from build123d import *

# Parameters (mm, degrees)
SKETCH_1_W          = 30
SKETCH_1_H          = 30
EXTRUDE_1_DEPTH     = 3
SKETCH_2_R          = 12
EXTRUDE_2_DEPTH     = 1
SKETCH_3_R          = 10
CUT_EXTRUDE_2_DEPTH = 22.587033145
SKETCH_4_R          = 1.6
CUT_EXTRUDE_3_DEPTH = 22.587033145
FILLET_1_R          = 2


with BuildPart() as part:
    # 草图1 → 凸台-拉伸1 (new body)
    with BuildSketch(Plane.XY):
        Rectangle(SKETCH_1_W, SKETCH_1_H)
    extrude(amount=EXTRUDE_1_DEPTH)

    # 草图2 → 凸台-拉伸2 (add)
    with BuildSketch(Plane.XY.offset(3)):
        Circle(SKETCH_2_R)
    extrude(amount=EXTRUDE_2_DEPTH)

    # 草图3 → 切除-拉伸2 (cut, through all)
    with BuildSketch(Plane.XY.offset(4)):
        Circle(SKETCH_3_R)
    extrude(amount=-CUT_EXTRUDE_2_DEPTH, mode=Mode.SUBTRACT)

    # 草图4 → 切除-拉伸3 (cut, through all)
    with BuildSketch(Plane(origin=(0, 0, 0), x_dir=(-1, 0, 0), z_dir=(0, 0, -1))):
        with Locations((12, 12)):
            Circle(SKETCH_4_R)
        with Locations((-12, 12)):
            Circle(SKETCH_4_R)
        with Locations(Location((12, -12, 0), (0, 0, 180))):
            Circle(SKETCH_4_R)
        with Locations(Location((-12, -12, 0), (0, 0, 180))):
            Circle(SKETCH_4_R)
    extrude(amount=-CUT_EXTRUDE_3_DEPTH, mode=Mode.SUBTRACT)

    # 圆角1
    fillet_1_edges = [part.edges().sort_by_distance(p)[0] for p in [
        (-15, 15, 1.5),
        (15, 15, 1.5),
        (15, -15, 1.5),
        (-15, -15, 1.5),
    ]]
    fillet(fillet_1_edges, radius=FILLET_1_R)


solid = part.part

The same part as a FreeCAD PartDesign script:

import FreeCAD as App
import Part
import Sketcher
from FreeCAD import Vector
Q = App.Units.Quantity


def edges_at(feature, points):
    """Names of the edges that pass closest to the given points."""
    edges = feature.Shape.Edges
    near = lambda p: min(range(len(edges)), key=lambda i: edges[i].distToShape(Part.Vertex(*p))[0])
    return sorted({f"Edge{near(p) + 1}" for p in points})

doc = App.newDocument("Part")
params = doc.addObject("Spreadsheet::Sheet", "Params")
for row, (alias, value) in enumerate([
    ("sketch1_width", "30 mm"),
    ("pad1_length", "3 mm"),
    ("sketch2_diameter", "24 mm"),
    ("pad2_length", "1 mm"),
    ("sketch3_diameter", "20 mm"),
    ("sketch4_diameter", "3.2 mm"),
    ("fillet_radius", "2 mm"),
], start=1):
    params.set(f"A{row}", alias)
    params.set(f"B{row}", "=" + value)
    params.setAlias(f"B{row}", alias)

body = doc.addObject("PartDesign::Body", "Body")

# Sketch on XY plane
sketch1 = body.newObject("Sketcher::SketchObject", "Sketch")
sketch1.AttachmentSupport = (doc.getObject("XY_Plane"), [""])
sketch1.MapMode = "FlatFace"
sketch1.addGeometry(Part.LineSegment(Vector(-15, 15, 0), Vector(-15, -15, 0)), False)
sketch1.addGeometry(Part.LineSegment(Vector(-15, -15, 0), Vector(15, -15, 0)), False)
sketch1.addGeometry(Part.LineSegment(Vector(15, -15, 0), Vector(15, 15, 0)), False)
sketch1.addGeometry(Part.LineSegment(Vector(15, 15, 0), Vector(-15, 15, 0)), False)
sketch1.addConstraint(Sketcher.Constraint("Coincident", 0, 2, 1, 1))
sketch1.addConstraint(Sketcher.Constraint("Coincident", 1, 2, 2, 1))
sketch1.addConstraint(Sketcher.Constraint("Coincident", 2, 2, 3, 1))
sketch1.addConstraint(Sketcher.Constraint("Coincident", 3, 2, 0, 1))
sketch1.addConstraint(Sketcher.Constraint("Vertical", 0))
sketch1.addConstraint(Sketcher.Constraint("Horizontal", 1))
sketch1.addConstraint(Sketcher.Constraint("Vertical", 2))
sketch1.addConstraint(Sketcher.Constraint("Horizontal", 3))
sketch1.addConstraint(Sketcher.Constraint("Symmetric", 0, 2, 2, 2, -1, 1))
sketch1.addConstraint(Sketcher.Constraint("Equal", 3, 0))
sketch1.addConstraint(Sketcher.Constraint("DistanceX", 1, 1, 1, 2, Q("30 mm")))
sketch1.setExpression("Constraints[10]", "Params.sketch1_width")
pad1 = body.newObject("PartDesign::Pad", "Pad")
pad1.Profile = sketch1
pad1.setExpression("Length", "Params.pad1_length")

# Sketch on XY plane
sketch2 = body.newObject("Sketcher::SketchObject", "Sketch001")
sketch2.AttachmentSupport = (doc.getObject("XY_Plane"), [""])
sketch2.MapMode = "FlatFace"
sketch2.AttachmentOffset = App.Placement(Vector(0, 0, 3), App.Rotation())
sketch2.addGeometry(Part.Circle(Vector(0, 0, 0), Vector(0, 0, 1), 12), False)
sketch2.addConstraint(Sketcher.Constraint("Coincident", 0, 3, -1, 1))
sketch2.addConstraint(Sketcher.Constraint("Diameter", 0, Q("24 mm")))
sketch2.setExpression("Constraints[1]", "Params.sketch2_diameter")
pad2 = body.newObject("PartDesign::Pad", "Pad001")
pad2.Profile = sketch2
pad2.setExpression("Length", "Params.pad2_length")

# Sketch on XY plane
sketch3 = body.newObject("Sketcher::SketchObject", "Sketch002")
sketch3.AttachmentSupport = (doc.getObject("XY_Plane"), [""])
sketch3.MapMode = "FlatFace"
sketch3.AttachmentOffset = App.Placement(Vector(0, 0, 4), App.Rotation())
sketch3.addGeometry(Part.Circle(Vector(0, 0, 0), Vector(0, 0, 1), 10), False)
sketch3.addConstraint(Sketcher.Constraint("Coincident", 0, 3, -1, 1))
sketch3.addConstraint(Sketcher.Constraint("Diameter", 0, Q("20 mm")))
sketch3.setExpression("Constraints[1]", "Params.sketch3_diameter")
pocket1 = body.newObject("PartDesign::Pocket", "Pocket")
pocket1.Profile = sketch3
pocket1.Type = "ThroughAll"

# Sketch on XY plane
sketch4 = body.newObject("Sketcher::SketchObject", "Sketch003")
sketch4.AttachmentSupport = (doc.getObject("XY_Plane"), [""])
sketch4.MapMode = "FlatFace"
sketch4.addGeometry(Part.Circle(Vector(-12, 12, 0), Vector(0, 0, 1), 1.6), False)
sketch4.addGeometry(Part.Circle(Vector(12, 12, 0), Vector(0, 0, 1), 1.6), False)
sketch4.addGeometry(Part.Circle(Vector(-12, -12, 0), Vector(0, 0, 1), 1.6), False)
sketch4.addGeometry(Part.Circle(Vector(12, -12, 0), Vector(0, 0, 1), 1.6), False)
sketch4.addConstraint(Sketcher.Constraint("Equal", 0, 1))
sketch4.addConstraint(Sketcher.Constraint("Equal", 1, 2))
sketch4.addConstraint(Sketcher.Constraint("Equal", 2, 3))
sketch4.addConstraint(Sketcher.Constraint("Symmetric", 1, 3, 2, 3, -1, 1))
sketch4.addConstraint(Sketcher.Constraint("Symmetric", 0, 3, 3, 3, -1, 1))
sketch4.addConstraint(Sketcher.Constraint("Symmetric", 0, 3, 1, 3, -2))
sketch4.addConstraint(Sketcher.Constraint("Diameter", 0, Q("3.2 mm")))
sketch4.addConstraint(Sketcher.Constraint("DistanceX", 0, 3, -1, 1, Q("12 mm")))
sketch4.addConstraint(Sketcher.Constraint("DistanceY", -1, 1, 0, 3, Q("12 mm")))
sketch4.setExpression("Constraints[6]", "Params.sketch4_diameter")
pocket2 = body.newObject("PartDesign::Pocket", "Pocket001")
pocket2.Profile = sketch4
pocket2.Type = "ThroughAll"
pocket2.Reversed = True
doc.recompute()

fillet = body.newObject("PartDesign::Fillet", "Fillet")
fillet.Base = (pocket2, edges_at(pocket2, [
    (-15, 15, 1.5),
    (15, 15, 1.5),
    (15, -15, 1.5),
    (-15, -15, 1.5),
]))
fillet.setExpression("Radius", "Params.fillet_radius")

doc.recompute()
